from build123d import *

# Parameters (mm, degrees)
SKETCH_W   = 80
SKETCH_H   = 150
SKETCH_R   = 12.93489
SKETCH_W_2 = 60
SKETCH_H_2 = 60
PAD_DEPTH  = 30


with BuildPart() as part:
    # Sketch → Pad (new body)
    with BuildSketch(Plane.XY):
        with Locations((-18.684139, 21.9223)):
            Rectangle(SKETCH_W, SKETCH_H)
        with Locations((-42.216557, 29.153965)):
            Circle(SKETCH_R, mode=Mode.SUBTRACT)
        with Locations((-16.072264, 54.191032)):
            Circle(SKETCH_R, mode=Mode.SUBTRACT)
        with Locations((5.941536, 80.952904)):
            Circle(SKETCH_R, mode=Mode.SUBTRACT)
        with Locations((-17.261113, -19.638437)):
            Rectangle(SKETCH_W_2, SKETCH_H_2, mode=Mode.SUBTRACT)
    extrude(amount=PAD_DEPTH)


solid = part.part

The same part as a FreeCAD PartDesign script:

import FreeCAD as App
import Part
import Sketcher


def add_polygon(sketch, points):
    """Adds a closed chain of lines whose ends are joined by coincident constraints."""
    first, n = sketch.GeometryCount, len(points)
    for a, b in zip(points, points[1:] + points[:1]):
        sketch.addGeometry(Part.LineSegment(App.Vector(*a, 0), App.Vector(*b, 0)), False)
    for i in range(n):
        sketch.addConstraint(Sketcher.Constraint("Coincident", first + i, 2, first + (i + 1) % n, 1))

doc = App.newDocument("Part")
body = doc.addObject("PartDesign::Body", "Body")

# Sketch on XY plane
sketch1 = body.newObject("Sketcher::SketchObject", "Sketch")
sketch1.AttachmentSupport = (doc.getObject("XY_Plane"), [""])
sketch1.MapMode = "FlatFace"
add_polygon(sketch1, [(-59, 97), (-59, -53), (21, -53), (21, 97)])  # lines 0-3
add_polygon(sketch1, [(13, -50), (-47, -50), (-47, 10), (13, 10)])  # lines 4-7
sketch1.addGeometry(Part.Circle(App.Vector(-42, 29, 0), App.Vector(0, 0, 1), 13), False)  # 8
sketch1.addGeometry(Part.Circle(App.Vector(-16, 54, 0), App.Vector(0, 0, 1), 13), False)  # 9
sketch1.addGeometry(Part.Circle(App.Vector(6, 81, 0), App.Vector(0, 0, 1), 13), False)  # 10
sketch1.addConstraint(Sketcher.Constraint("Vertical", 0))
sketch1.addConstraint(Sketcher.Constraint("Horizontal", 1))
sketch1.addConstraint(Sketcher.Constraint("Vertical", 2))
sketch1.addConstraint(Sketcher.Constraint("Horizontal", 3))
sketch1.addConstraint(Sketcher.Constraint("Horizontal", 4))
sketch1.addConstraint(Sketcher.Constraint("Vertical", 5))
sketch1.addConstraint(Sketcher.Constraint("Horizontal", 6))
sketch1.addConstraint(Sketcher.Constraint("Vertical", 7))
sketch1.addConstraint(Sketcher.Constraint("Equal", 8, 9))
sketch1.addConstraint(Sketcher.Constraint("Equal", 9, 10))
sketch1.addConstraint(Sketcher.Constraint("Equal", 6, 5))
sketch1.addConstraint(Sketcher.Constraint("DistanceX", 1, 1, 1, 2, 80.0))
sketch1.addConstraint(Sketcher.Constraint("DistanceX", 4, 2, 4, 1, 60.0))
sketch1.addConstraint(Sketcher.Constraint("DistanceY", 0, 2, 0, 1, 150.0))
sketch1.addConstraint(Sketcher.Constraint("Diameter", 8, 25.86978))
sketch1.addConstraint(Sketcher.Constraint("DistanceY", 0, 2, -1, 1, 53.0777))
sketch1.addConstraint(Sketcher.Constraint("DistanceX", 9, 3, 10, 3, 22.0138))
sketch1.addConstraint(Sketcher.Constraint("DistanceY", 5, 2, 8, 3, 18.792402))
sketch1.addConstraint(Sketcher.Constraint("DistanceX", 0, 2, -1, 1, 58.684139))
sketch1.addConstraint(Sketcher.Constraint("DistanceY", 8, 3, 10, 3, 51.798939))
sketch1.addConstraint(Sketcher.Constraint("DistanceX", 0, 2, 8, 3, 16.467582))
sketch1.addConstraint(Sketcher.Constraint("DistanceY", 0, 2, 9, 3, 107.268732))
sketch1.addConstraint(Sketcher.Constraint("DistanceX", 4, 2, 9, 3, 31.188849))
sketch1.addConstraint(Sketcher.Constraint("DistanceY", 4, 2, 9, 3, 103.829469))
sketch1.addConstraint(Sketcher.Constraint("DistanceX", 9, 3, -1, 1, 16.072264))
pad1 = body.newObject("PartDesign::Pad", "Pad")
pad1.Profile = sketch1
pad1.Length = 30

doc.recompute()
